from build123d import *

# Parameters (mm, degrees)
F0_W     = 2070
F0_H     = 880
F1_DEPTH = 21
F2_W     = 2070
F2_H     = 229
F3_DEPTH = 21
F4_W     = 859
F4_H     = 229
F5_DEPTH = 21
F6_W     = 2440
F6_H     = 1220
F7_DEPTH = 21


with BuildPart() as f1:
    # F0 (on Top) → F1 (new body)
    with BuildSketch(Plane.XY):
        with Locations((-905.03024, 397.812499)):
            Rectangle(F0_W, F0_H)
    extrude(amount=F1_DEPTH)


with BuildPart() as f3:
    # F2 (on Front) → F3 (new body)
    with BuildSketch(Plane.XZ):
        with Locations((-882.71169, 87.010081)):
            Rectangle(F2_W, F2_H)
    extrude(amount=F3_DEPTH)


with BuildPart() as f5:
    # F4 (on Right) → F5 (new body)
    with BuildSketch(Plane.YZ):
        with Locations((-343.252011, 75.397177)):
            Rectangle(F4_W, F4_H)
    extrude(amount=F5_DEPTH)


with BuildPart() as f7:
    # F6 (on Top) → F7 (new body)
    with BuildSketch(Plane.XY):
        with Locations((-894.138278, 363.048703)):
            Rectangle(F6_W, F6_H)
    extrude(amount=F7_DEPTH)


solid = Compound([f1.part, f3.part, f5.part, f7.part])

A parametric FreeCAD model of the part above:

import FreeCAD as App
import Part
import Sketcher
from FreeCAD import Vector


def add_polygon(sketch, points):
    """Adds a closed chain of lines whose ends are joined by coincident constraints."""
    first, n = sketch.GeometryCount, len(points)
    for a, b in zip(points, points[1:] + points[:1]):
        sketch.addGeometry(Part.LineSegment(App.Vector(*a, 0), App.Vector(*b, 0)), False)
    for i in range(n):
        sketch.addConstraint(Sketcher.Constraint("Coincident", first + i, 2, first + (i + 1) % n, 1))

doc = App.newDocument("Part")
body = doc.addObject("PartDesign::Body", "Body")

sketch1 = body.newObject("Sketcher::SketchObject", "Sketch")
sketch1.AttachmentSupport = (doc.getObject("XY_Plane"), [""])
sketch1.MapMode = "FlatFace"
add_polygon(sketch1, [(-1940, 838), (-1940, -42), (130, -42), (130, 838)])
sketch1.addConstraint(Sketcher.Constraint("Vertical", 0))
sketch1.addConstraint(Sketcher.Constraint("Horizontal", 1))
sketch1.addConstraint(Sketcher.Constraint("Vertical", 2))
sketch1.addConstraint(Sketcher.Constraint("Horizontal", 3))
sketch1.addConstraint(Sketcher.Constraint("DistanceX", 1, 1, 1, 2, 2070.0))
sketch1.addConstraint(Sketcher.Constraint("DistanceY", 0, 2, 0, 1, 880.0))
sketch1.addConstraint(Sketcher.Constraint("DistanceY", 0, 2, -1, 1, 42.187501))
sketch1.addConstraint(Sketcher.Constraint("DistanceX", 0, 2, -1, 1, 1940.03024))
pad1 = body.newObject("PartDesign::Pad", "Pad")
pad1.Profile = sketch1
pad1.Length = 21
body2 = doc.addObject("PartDesign::Body", "Body001")

sketch2 = body2.newObject("Sketcher::SketchObject", "Sketch001")
sketch2.AttachmentSupport = (doc.getObject("XZ_Plane001"), [""])
sketch2.MapMode = "FlatFace"
add_polygon(sketch2, [(-1918, 202), (-1918, -27), (152, -27), (152, 202)])
sketch2.addConstraint(Sketcher.Constraint("Vertical", 0))
sketch2.addConstraint(Sketcher.Constraint("Horizontal", 1))
sketch2.addConstraint(Sketcher.Constraint("Vertical", 2))
sketch2.addConstraint(Sketcher.Constraint("Horizontal", 3))
sketch2.addConstraint(Sketcher.Constraint("DistanceX", 1, 1, 1, 2, 2070.0))
sketch2.addConstraint(Sketcher.Constraint("DistanceY", 0, 2, 0, 1, 229.0))
sketch2.addConstraint(Sketcher.Constraint("DistanceX", 0, 2, -1, 1, 1917.71169))
sketch2.addConstraint(Sketcher.Constraint("DistanceY", 0, 2, -1, 1, 27.489919))
pad2 = body2.newObject("PartDesign::Pad", "Pad001")
pad2.Profile = sketch2
pad2.Length = 21
body3 = doc.addObject("PartDesign::Body", "Body002")

sketch3 = body3.newObject("Sketcher::SketchObject", "Sketch002")
sketch3.AttachmentSupport = (doc.getObject("YZ_Plane002"), [""])
sketch3.MapMode = "FlatFace"
add_polygon(sketch3, [(-773, 190), (-773, -39), (86, -39), (86, 190)])
sketch3.addConstraint(Sketcher.Constraint("Vertical", 0))
sketch3.addConstraint(Sketcher.Constraint("Horizontal", 1))
sketch3.addConstraint(Sketcher.Constraint("Vertical", 2))
sketch3.addConstraint(Sketcher.Constraint("Horizontal", 3))
sketch3.addConstraint(Sketcher.Constraint("DistanceX", 1, 1, 1, 2, 859.0))
sketch3.addConstraint(Sketcher.Constraint("DistanceY", 0, 2, 0, 1, 229.0))
sketch3.addConstraint(Sketcher.Constraint("DistanceX", 0, 2, -1, 1, 772.752011))
sketch3.addConstraint(Sketcher.Constraint("DistanceY", 0, 2, -1, 1, 39.102823))
pad3 = body3.newObject("PartDesign::Pad", "Pad002")
pad3.Profile = sketch3
pad3.Length = 21
body4 = doc.addObject("PartDesign::Body", "Body003")

sketch4 = body4.newObject("Sketcher::SketchObject", "Sketch003")
sketch4.AttachmentSupport = (doc.getObject("XY_Plane003"), [""])
sketch4.MapMode = "FlatFace"
add_polygon(sketch4, [(-2114, 973), (-2114, -247), (326, -247), (326, 973)])
sketch4.addConstraint(Sketcher.Constraint("Vertical", 0))
sketch4.addConstraint(Sketcher.Constraint("Horizontal", 1))
sketch4.addConstraint(Sketcher.Constraint("Vertical", 2))
sketch4.addConstraint(Sketcher.Constraint("Horizontal", 3))
sketch4.addConstraint(Sketcher.Constraint("DistanceX", 1, 1, 1, 2, 2440.0))
sketch4.addConstraint(Sketcher.Constraint("DistanceY", 0, 2, 0, 1, 1220.0))
sketch4.addConstraint(Sketcher.Constraint("DistanceX", -1, 1, 1, 2, 325.861722))
sketch4.addConstraint(Sketcher.Constraint("DistanceY", 0, 2, -1, 1, 246.951297))
pad4 = body4.newObject("PartDesign::Pad", "Pad003")
pad4.Profile = sketch4
pad4.Length = 21

doc.recompute()
